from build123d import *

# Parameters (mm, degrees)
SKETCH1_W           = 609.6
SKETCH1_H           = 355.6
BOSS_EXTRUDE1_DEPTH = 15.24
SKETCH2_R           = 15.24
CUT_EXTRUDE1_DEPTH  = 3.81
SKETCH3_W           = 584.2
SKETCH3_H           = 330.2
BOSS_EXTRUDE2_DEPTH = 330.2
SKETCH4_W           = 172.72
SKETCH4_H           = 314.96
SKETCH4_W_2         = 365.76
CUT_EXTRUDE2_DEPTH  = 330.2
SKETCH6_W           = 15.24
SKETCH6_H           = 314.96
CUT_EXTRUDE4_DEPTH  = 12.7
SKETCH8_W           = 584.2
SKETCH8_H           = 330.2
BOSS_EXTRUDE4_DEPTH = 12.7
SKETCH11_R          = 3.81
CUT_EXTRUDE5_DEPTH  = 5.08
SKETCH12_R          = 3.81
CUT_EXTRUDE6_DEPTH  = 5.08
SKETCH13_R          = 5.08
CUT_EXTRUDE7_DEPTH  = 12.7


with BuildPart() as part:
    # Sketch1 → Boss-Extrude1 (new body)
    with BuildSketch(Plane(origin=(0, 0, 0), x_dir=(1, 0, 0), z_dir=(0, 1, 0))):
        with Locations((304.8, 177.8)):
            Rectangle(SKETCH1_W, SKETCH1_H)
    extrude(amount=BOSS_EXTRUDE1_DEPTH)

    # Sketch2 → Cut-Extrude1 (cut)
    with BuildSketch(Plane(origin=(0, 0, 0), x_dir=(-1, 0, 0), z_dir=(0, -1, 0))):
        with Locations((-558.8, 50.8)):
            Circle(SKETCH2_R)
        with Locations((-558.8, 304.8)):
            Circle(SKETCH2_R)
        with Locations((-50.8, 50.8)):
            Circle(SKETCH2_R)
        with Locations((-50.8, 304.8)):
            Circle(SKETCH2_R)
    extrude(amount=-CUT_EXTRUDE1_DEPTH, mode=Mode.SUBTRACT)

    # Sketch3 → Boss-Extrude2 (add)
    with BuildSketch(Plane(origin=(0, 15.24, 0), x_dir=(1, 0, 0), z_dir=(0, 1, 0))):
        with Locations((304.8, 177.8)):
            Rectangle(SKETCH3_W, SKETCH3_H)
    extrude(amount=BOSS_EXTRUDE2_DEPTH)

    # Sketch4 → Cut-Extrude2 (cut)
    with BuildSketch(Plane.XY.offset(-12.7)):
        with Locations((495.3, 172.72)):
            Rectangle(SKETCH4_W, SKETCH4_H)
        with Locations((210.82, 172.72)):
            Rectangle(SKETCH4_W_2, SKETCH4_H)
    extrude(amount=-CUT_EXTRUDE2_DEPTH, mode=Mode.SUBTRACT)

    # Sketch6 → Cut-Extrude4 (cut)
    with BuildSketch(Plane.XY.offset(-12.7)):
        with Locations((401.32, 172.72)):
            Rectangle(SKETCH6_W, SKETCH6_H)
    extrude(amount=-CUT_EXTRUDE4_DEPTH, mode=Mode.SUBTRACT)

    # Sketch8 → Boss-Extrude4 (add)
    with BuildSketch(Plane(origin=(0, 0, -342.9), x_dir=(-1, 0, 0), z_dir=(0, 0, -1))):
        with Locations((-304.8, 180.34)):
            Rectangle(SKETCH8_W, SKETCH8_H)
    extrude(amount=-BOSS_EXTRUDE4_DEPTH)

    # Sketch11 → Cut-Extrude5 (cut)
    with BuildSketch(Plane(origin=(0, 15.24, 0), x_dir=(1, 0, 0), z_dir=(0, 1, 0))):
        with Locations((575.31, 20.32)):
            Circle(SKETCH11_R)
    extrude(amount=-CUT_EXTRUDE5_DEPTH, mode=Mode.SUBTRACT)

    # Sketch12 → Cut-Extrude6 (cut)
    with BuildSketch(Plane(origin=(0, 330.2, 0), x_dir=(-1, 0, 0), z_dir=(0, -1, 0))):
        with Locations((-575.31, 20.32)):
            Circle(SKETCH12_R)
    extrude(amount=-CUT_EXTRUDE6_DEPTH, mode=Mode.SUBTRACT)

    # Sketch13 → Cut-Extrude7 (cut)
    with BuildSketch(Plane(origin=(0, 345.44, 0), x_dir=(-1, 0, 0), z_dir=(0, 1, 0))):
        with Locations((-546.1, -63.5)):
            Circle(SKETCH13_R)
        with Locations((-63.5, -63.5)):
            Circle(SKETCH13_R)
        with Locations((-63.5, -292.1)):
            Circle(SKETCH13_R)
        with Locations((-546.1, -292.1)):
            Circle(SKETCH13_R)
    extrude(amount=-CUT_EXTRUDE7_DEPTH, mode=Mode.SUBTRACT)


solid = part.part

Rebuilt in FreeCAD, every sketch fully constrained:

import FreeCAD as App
import Part
import Sketcher
from FreeCAD import Vector
Q = App.Units.Quantity


def add_polygon(sketch, points):
    """Adds a closed chain of lines whose ends are joined by coincident constraints."""
    first, n = sketch.GeometryCount, len(points)
    for a, b in zip(points, points[1:] + points[:1]):
        sketch.addGeometry(Part.LineSegment(App.Vector(*a, 0), App.Vector(*b, 0)), False)
    for i in range(n):
        sketch.addConstraint(Sketcher.Constraint("Coincident", first + i, 2, first + (i + 1) % n, 1))

doc = App.newDocument("Part")
body = doc.addObject("PartDesign::Body", "Body")

sketch1 = doc.addObject("Sketcher::SketchObject", "Sketch")
body.addObject(sketch1)
sketch1.AttachmentSupport = (doc.XZ_Plane, [""])
sketch1.MapMode = "FlatFace"
add_polygon(sketch1, [(0, -356), (0, 0), (610, 0), (610, -356)])
sketch1.addConstraint(Sketcher.Constraint("Vertical", 0))
sketch1.addConstraint(Sketcher.Constraint("Horizontal", 1))
sketch1.addConstraint(Sketcher.Constraint("Vertical", 2))
sketch1.addConstraint(Sketcher.Constraint("Horizontal", 3))
sketch1.addConstraint(Sketcher.Constraint("Coincident", 0, 2, -1, 1))
sketch1.addConstraint(Sketcher.Constraint("DistanceX", 1, 1, 1, 2, Q("24 in")))
sketch1.addConstraint(Sketcher.Constraint("DistanceY", 0, 1, 0, 2, Q("14 in")))
pad1 = doc.addObject("PartDesign::Pad", "Pad")
body.addObject(pad1)
pad1.Profile = sketch1
pad1.Length = Q("0.6 in")
pad1.Reversed = True

sketch2 = doc.addObject("Sketcher::SketchObject", "Sketch001")
body.addObject(sketch2)
sketch2.AttachmentSupport = (doc.XZ_Plane, [""])
sketch2.MapMode = "FlatFace"
sketch2.addGeometry(Part.Circle(Vector(559, -51, 0), Vector(0, 0, 1), 15), False)
sketch2.addGeometry(Part.Circle(Vector(559, -305, 0), Vector(0, 0, 1), 15), False)
sketch2.addGeometry(Part.Circle(Vector(51, -51, 0), Vector(0, 0, 1), 15), False)
sketch2.addGeometry(Part.Circle(Vector(51, -305, 0), Vector(0, 0, 1), 15), False)
sketch2.addConstraint(Sketcher.Constraint("Equal", 0, 1))
sketch2.addConstraint(Sketcher.Constraint("Equal", 1, 2))
sketch2.addConstraint(Sketcher.Constraint("Equal", 2, 3))
sketch2.addConstraint(Sketcher.Constraint("Horizontal", 0, 3, 2, 3))
sketch2.addConstraint(Sketcher.Constraint("Horizontal", 1, 3, 3, 3))
sketch2.addConstraint(Sketcher.Constraint("Vertical", 0, 3, 1, 3))
sketch2.addConstraint(Sketcher.Constraint("Vertical", 2, 3, 3, 3))
sketch2.addConstraint(Sketcher.Constraint("Diameter", 0, Q("1.2 in")))
sketch2.addConstraint(Sketcher.Constraint("DistanceX", -1, 1, 0, 3, Q("22 in")))
sketch2.addConstraint(Sketcher.Constraint("DistanceY", 0, 3, -1, 1, Q("2 in")))
sketch2.addConstraint(Sketcher.Constraint("DistanceY", 1, 3, -1, 1, Q("12 in")))
sketch2.addConstraint(Sketcher.Constraint("DistanceX", -1, 1, 2, 3, Q("2 in")))
pocket1 = doc.addObject("PartDesign::Pocket", "Pocket")
body.addObject(pocket1)
pocket1.Profile = sketch2
pocket1.Length = Q("0.15 in")

sketch3 = doc.addObject("Sketcher::SketchObject", "Sketch002")
body.addObject(sketch3)
sketch3.AttachmentSupport = (doc.XZ_Plane, [""])
sketch3.MapMode = "FlatFace"
sketch3.AttachmentOffset = App.Placement(Vector(0, 0, -0.6 * 25.4), App.Rotation())
add_polygon(sketch3, [(13, -343), (13, -13), (597, -13), (597, -343)])
sketch3.addConstraint(Sketcher.Constraint("Vertical", 0))
sketch3.addConstraint(Sketcher.Constraint("Horizontal", 1))
sketch3.addConstraint(Sketcher.Constraint("Vertical", 2))
sketch3.addConstraint(Sketcher.Constraint("Horizontal", 3))
sketch3.addConstraint(Sketcher.Constraint("DistanceX", 1, 1, 1, 2, Q("23 in")))
sketch3.addConstraint(Sketcher.Constraint("DistanceY", 0, 1, 0, 2, Q("13 in")))
sketch3.addConstraint(Sketcher.Constraint("DistanceX", -1, 1, 0, 2, Q("0.5 in")))
sketch3.addConstraint(Sketcher.Constraint("DistanceY", 0, 2, -1, 1, Q("0.5 in")))
pad2 = doc.addObject("PartDesign::Pad", "Pad001")
body.addObject(pad2)
pad2.Profile = sketch3
pad2.Length = Q("13 in")
pad2.Reversed = True

sketch4 = doc.addObject("Sketcher::SketchObject", "Sketch003")
body.addObject(sketch4)
sketch4.AttachmentSupport = (doc.XY_Plane, [""])
sketch4.MapMode = "FlatFace"
sketch4.AttachmentOffset = App.Placement(Vector(0, 0, -0.5 * 25.4), App.Rotation())
add_polygon(sketch4, [(409, 330), (409, 15), (582, 15), (582, 330)])
add_polygon(sketch4, [(28, 330), (28, 15), (394, 15), (394, 330)])
sketch4.addConstraint(Sketcher.Constraint("Vertical", 0))
sketch4.addConstraint(Sketcher.Constraint("Horizontal", 1))
sketch4.addConstraint(Sketcher.Constraint("Vertical", 2))
sketch4.addConstraint(Sketcher.Constraint("Horizontal", 3))
sketch4.addConstraint(Sketcher.Constraint("Vertical", 4))
sketch4.addConstraint(Sketcher.Constraint("Horizontal", 5))
sketch4.addConstraint(Sketcher.Constraint("Vertical", 6))
sketch4.addConstraint(Sketcher.Constraint("Horizontal", 7))
sketch4.addConstraint(Sketcher.Constraint("Horizontal", 1, 2, 4, 2))
sketch4.addConstraint(Sketcher.Constraint("Horizontal", 3, 2, 6, 2))
sketch4.addConstraint(Sketcher.Constraint("DistanceX", 1, 1, 1, 2, Q("6.8 in")))
sketch4.addConstraint(Sketcher.Constraint("DistanceX", 5, 1, 5, 2, Q("14.4 in")))
sketch4.addConstraint(Sketcher.Constraint("DistanceY", 0, 2, 0, 1, Q("12.4 in")))
sketch4.addConstraint(Sketcher.Constraint("DistanceY", -1, 1, 2, 2, Q("13 in")))
sketch4.addConstraint(Sketcher.Constraint("DistanceX", 4, 2, 0, 2, Q("15 in")))
sketch4.addConstraint(Sketcher.Constraint("DistanceX", -1, 1, 0, 2, Q("16.1 in")))
pocket2 = doc.addObject("PartDesign::Pocket", "Pocket001")
body.addObject(pocket2)
pocket2.Profile = sketch4
pocket2.Length = Q("13 in")

sketch5 = doc.addObject("Sketcher::SketchObject", "Sketch004")
body.addObject(sketch5)
sketch5.AttachmentSupport = (doc.XY_Plane, [""])
sketch5.MapMode = "FlatFace"
sketch5.AttachmentOffset = App.Placement(Vector(0, 0, -0.5 * 25.4), App.Rotation())
add_polygon(sketch5, [(394, 330), (394, 15), (409, 15), (409, 330)])
sketch5.addConstraint(Sketcher.Constraint("Vertical", 0))
sketch5.addConstraint(Sketcher.Constraint("Horizontal", 1))
sketch5.addConstraint(Sketcher.Constraint("Vertical", 2))
sketch5.addConstraint(Sketcher.Constraint("Horizontal", 3))
sketch5.addConstraint(Sketcher.Constraint("DistanceX", 1, 1, 1, 2, Q("0.6 in")))
sketch5.addConstraint(Sketcher.Constraint("DistanceY", 0, 2, 0, 1, Q("12.4 in")))
sketch5.addConstraint(Sketcher.Constraint("DistanceY", -1, 1, 2, 2, Q("13 in")))
sketch5.addConstraint(Sketcher.Constraint("DistanceX", -1, 1, 0, 2, Q("15.5 in")))
pocket3 = doc.addObject("PartDesign::Pocket", "Pocket002")
body.addObject(pocket3)
pocket3.Profile = sketch5
pocket3.Length = Q("0.5 in")

sketch6 = doc.addObject("Sketcher::SketchObject", "Sketch005")
body.addObject(sketch6)
sketch6.AttachmentSupport = (doc.XY_Plane, [""])
sketch6.MapMode = "FlatFace"
sketch6.AttachmentOffset = App.Placement(Vector(0, 0, -13.5 * 25.4), App.Rotation())
add_polygon(sketch6, [(597, 345), (597, 15), (13, 15), (13, 345)])
sketch6.addConstraint(Sketcher.Constraint("Vertical", 0))
sketch6.addConstraint(Sketcher.Constraint("Horizontal", 1))
sketch6.addConstraint(Sketcher.Constraint("Vertical", 2))
sketch6.addConstraint(Sketcher.Constraint("Horizontal", 3))
sketch6.addConstraint(Sketcher.Constraint("DistanceX", 1, 2, 1, 1, Q("23 in")))
sketch6.addConstraint(Sketcher.Constraint("DistanceY", 0, 2, 0, 1, Q("13 in")))
sketch6.addConstraint(Sketcher.Constraint("DistanceX", -1, 1, 0, 2, Q("23.5 in")))
sketch6.addConstraint(Sketcher.Constraint("DistanceY", -1, 1, 0, 2, Q("0.6 in")))
pad3 = doc.addObject("PartDesign::Pad", "Pad002")
body.addObject(pad3)
pad3.Profile = sketch6
pad3.Length = Q("0.5 in")

sketch7 = doc.addObject("Sketcher::SketchObject", "Sketch006")
body.addObject(sketch7)
sketch7.AttachmentSupport = (doc.XZ_Plane, [""])
sketch7.MapMode = "FlatFace"
sketch7.AttachmentOffset = App.Placement(Vector(0, 0, -0.6 * 25.4), App.Rotation())
sketch7.addGeometry(Part.Circle(Vector(575.3, -20.3, 0), Vector(0, 0, 1), 3.8), False)
sketch7.addConstraint(Sketcher.Constraint("Diameter", 0, Q("0.3 in")))
sketch7.addConstraint(Sketcher.Constraint("DistanceY", 0, 3, -1, 1, Q("0.8 in")))
sketch7.addConstraint(Sketcher.Constraint("DistanceX", -1, 1, 0, 3, Q("22.65 in")))
pocket4 = doc.addObject("PartDesign::Pocket", "Pocket003")
body.addObject(pocket4)
pocket4.Profile = sketch7
pocket4.Length = Q("0.2 in")
pocket4.Reversed = True

sketch8 = doc.addObject("Sketcher::SketchObject", "Sketch007")
body.addObject(sketch8)
sketch8.AttachmentSupport = (doc.XZ_Plane, [""])
sketch8.MapMode = "FlatFace"
sketch8.AttachmentOffset = App.Placement(Vector(0, 0, -13 * 25.4), App.Rotation())
sketch8.addGeometry(Part.Circle(Vector(575.3, -20.3, 0), Vector(0, 0, 1), 3.8), False)
sketch8.addConstraint(Sketcher.Constraint("Diameter", 0, Q("0.3 in")))
sketch8.addConstraint(Sketcher.Constraint("DistanceY", 0, 3, -1, 1, Q("0.8 in")))
sketch8.addConstraint(Sketcher.Constraint("DistanceX", -1, 1, 0, 3, Q("22.65 in")))
pocket5 = doc.addObject("PartDesign::Pocket", "Pocket004")
body.addObject(pocket5)
pocket5.Profile = sketch8
pocket5.Length = Q("0.2 in")

sketch9 = doc.addObject("Sketcher::SketchObject", "Sketch008")
body.addObject(sketch9)
sketch9.AttachmentSupport = (doc.XZ_Plane, [""])
sketch9.MapMode = "FlatFace"
sketch9.AttachmentOffset = App.Placement(Vector(0, 0, -13.6 * 25.4), App.Rotation())
sketch9.addGeometry(Part.Circle(Vector(546, -64, 0), Vector(0, 0, 1), 5), False)
sketch9.addGeometry(Part.Circle(Vector(64, -64, 0), Vector(0, 0, 1), 5), False)
sketch9.addGeometry(Part.Circle(Vector(64, -292, 0), Vector(0, 0, 1), 5), False)
sketch9.addGeometry(Part.Circle(Vector(546, -292, 0), Vector(0, 0, 1), 5), False)
sketch9.addConstraint(Sketcher.Constraint("Equal", 0, 1))
sketch9.addConstraint(Sketcher.Constraint("Equal", 1, 2))
sketch9.addConstraint(Sketcher.Constraint("Equal", 2, 3))
sketch9.addConstraint(Sketcher.Constraint("Horizontal", 0, 3, 1, 3))
sketch9.addConstraint(Sketcher.Constraint("Horizontal", 2, 3, 3, 3))
sketch9.addConstraint(Sketcher.Constraint("Vertical", 1, 3, 2, 3))
sketch9.addConstraint(Sketcher.Constraint("Vertical", 0, 3, 3, 3))
sketch9.addConstraint(Sketcher.Constraint("Diameter", 0, Q("0.4 in")))
sketch9.addConstraint(Sketcher.Constraint("DistanceX", 1, 3, 0, 3, Q("19 in")))
sketch9.addConstraint(Sketcher.Constraint("DistanceY", 2, 3, 1, 3, Q("9 in")))
sketch9.addConstraint(Sketcher.Constraint("DistanceX", -1, 1, 0, 3, Q("21.5 in")))
sketch9.addConstraint(Sketcher.Constraint("DistanceY", 0, 3, -1, 1, Q("2.5 in")))
pocket6 = doc.addObject("PartDesign::Pocket", "Pocket005")
body.addObject(pocket6)
pocket6.Profile = sketch9
pocket6.Length = Q("0.5 in")
pocket6.Reversed = True

doc.recompute()
